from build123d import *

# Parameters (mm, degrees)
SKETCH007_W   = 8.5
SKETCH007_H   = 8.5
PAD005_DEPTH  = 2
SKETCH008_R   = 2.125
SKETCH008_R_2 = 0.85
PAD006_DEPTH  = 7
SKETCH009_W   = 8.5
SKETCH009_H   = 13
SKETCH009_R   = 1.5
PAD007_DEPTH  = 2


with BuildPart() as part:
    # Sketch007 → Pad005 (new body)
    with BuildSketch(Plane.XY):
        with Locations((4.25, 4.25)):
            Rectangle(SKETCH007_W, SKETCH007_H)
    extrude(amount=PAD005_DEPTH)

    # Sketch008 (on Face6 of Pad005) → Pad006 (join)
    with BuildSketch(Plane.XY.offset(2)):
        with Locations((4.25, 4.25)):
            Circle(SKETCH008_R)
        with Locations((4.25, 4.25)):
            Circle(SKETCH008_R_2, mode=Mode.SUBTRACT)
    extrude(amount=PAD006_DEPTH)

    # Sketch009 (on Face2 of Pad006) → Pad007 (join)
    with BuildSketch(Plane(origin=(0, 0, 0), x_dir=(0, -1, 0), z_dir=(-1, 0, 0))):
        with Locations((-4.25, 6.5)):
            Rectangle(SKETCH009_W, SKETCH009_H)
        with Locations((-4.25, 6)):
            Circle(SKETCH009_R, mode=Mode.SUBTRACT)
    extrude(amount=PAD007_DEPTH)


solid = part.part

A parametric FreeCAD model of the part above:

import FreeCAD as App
import Part
import Sketcher
from FreeCAD import Vector
Q = App.Units.Quantity

doc = App.newDocument("Part")
body = doc.addObject("PartDesign::Body", "Body")

sketch1 = body.newObject("Sketcher::SketchObject", "Sketch")
sketch1.AttachmentSupport = (doc.getObject("XY_Plane"), [""])
sketch1.MapMode = "FlatFace"
sketch1.addGeometry([
    Part.LineSegment(Vector(0, 8.5, 0), Vector(0, 0, 0)),
    Part.LineSegment(Vector(0, 0, 0), Vector(8.5, 0, 0)),
    Part.LineSegment(Vector(8.5, 0, 0), Vector(8.5, 8.5, 0)),
    Part.LineSegment(Vector(8.5, 8.5, 0), Vector(0, 8.5, 0)),
], False)
sketch1.addConstraint([
    Sketcher.Constraint("Coincident", 0, 2, 1, 1),
    Sketcher.Constraint("Coincident", 1, 2, 2, 1),
    Sketcher.Constraint("Coincident", 2, 2, 3, 1),
    Sketcher.Constraint("Coincident", 3, 2, 0, 1),
    Sketcher.Constraint("Vertical", 0),
    Sketcher.Constraint("Horizontal", 1),
    Sketcher.Constraint("Vertical", 2),
    Sketcher.Constraint("Horizontal", 3),
    Sketcher.Constraint("Coincident", 0, 2, -1, 1),
    Sketcher.Constraint("Equal", 3, 0),
    Sketcher.Constraint("DistanceX", 1, 1, 1, 2, Q("8.5 mm")),
])
pad1 = body.newObject("PartDesign::Pad", "Pad")
pad1.Profile = sketch1
pad1.Length = 2

sketch2 = body.newObject("Sketcher::SketchObject", "Sketch001")
sketch2.AttachmentSupport = (doc.getObject("XY_Plane"), [""])
sketch2.MapMode = "FlatFace"
sketch2.AttachmentOffset = App.Placement(Vector(0, 0, 2), App.Rotation())
sketch2.addGeometry([
    Part.Circle(Vector(4.25, 4.25, 0), Vector(0, 0, 1), 2.125),
    Part.Circle(Vector(4.25, 4.25, 0), Vector(0, 0, 1), 0.85),
], False)
sketch2.addConstraint([
    Sketcher.Constraint("Coincident", 1, 3, 0, 3),
    Sketcher.Constraint("Diameter", 1, Q("1.7 mm")),
    Sketcher.Constraint("Diameter", 0, Q("4.25 mm")),
    Sketcher.Constraint("DistanceX", -1, 1, 0, 3, Q("4.25 mm")),
    Sketcher.Constraint("DistanceY", -1, 1, 0, 3, Q("4.25 mm")),
])
pad2 = body.newObject("PartDesign::Pad", "Pad001")
pad2.Profile = sketch2
pad2.Length = 7

sketch3 = body.newObject("Sketcher::SketchObject", "Sketch002")
sketch3.AttachmentSupport = (doc.getObject("YZ_Plane"), [""])
sketch3.MapMode = "FlatFace"
sketch3.addGeometry([
    Part.LineSegment(Vector(8.5, 13, 0), Vector(8.5, 0, 0)),
    Part.LineSegment(Vector(8.5, 0, 0), Vector(0, 0, 0)),
    Part.LineSegment(Vector(0, 0, 0), Vector(0, 13, 0)),
    Part.LineSegment(Vector(0, 13, 0), Vector(8.5, 13, 0)),
    Part.Circle(Vector(4.25, 6, 0), Vector(0, 0, 1), 1.5),
], False)
sketch3.addConstraint([
    Sketcher.Constraint("Coincident", 0, 2, 1, 1),
    Sketcher.Constraint("Coincident", 1, 2, 2, 1),
    Sketcher.Constraint("Coincident", 2, 2, 3, 1),
    Sketcher.Constraint("Coincident", 3, 2, 0, 1),
    Sketcher.Constraint("Vertical", 0),
    Sketcher.Constraint("Horizontal", 1),
    Sketcher.Constraint("Vertical", 2),
    Sketcher.Constraint("Horizontal", 3),
    Sketcher.Constraint("Coincident", 1, 2, -1, 1),
    Sketcher.Constraint("Diameter", 4, Q("3 mm")),
    Sketcher.Constraint("DistanceY", 0, 2, 0, 1, Q("13 mm")),
    Sketcher.Constraint("DistanceX", 1, 2, 1, 1, Q("8.5 mm")),
    Sketcher.Constraint("DistanceY", -1, 1, 4, 3, Q("6 mm")),
    Sketcher.Constraint("DistanceX", -1, 1, 4, 3, Q("4.25 mm")),
])
pad3 = body.newObject("PartDesign::Pad", "Pad002")
pad3.Profile = sketch3
pad3.Length = 2
pad3.Reversed = True

doc.recompute()
